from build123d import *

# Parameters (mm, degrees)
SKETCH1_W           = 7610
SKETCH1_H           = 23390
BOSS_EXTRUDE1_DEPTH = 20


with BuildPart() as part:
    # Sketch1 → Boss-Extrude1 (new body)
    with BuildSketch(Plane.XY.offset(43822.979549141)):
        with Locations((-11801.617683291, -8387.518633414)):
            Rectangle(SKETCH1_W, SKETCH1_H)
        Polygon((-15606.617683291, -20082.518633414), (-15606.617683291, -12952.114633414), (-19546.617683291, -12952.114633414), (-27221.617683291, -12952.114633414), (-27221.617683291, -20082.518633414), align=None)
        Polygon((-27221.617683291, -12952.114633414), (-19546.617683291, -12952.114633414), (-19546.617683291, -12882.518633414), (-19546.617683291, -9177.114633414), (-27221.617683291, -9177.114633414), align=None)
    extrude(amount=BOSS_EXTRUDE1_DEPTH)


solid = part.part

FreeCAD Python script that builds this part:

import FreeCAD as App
import Part
import Sketcher
from FreeCAD import Vector
Q = App.Units.Quantity


def add_polygon(sketch, points):
    """Adds a closed chain of lines whose ends are joined by coincident constraints."""
    first, n = sketch.GeometryCount, len(points)
    for a, b in zip(points, points[1:] + points[:1]):
        sketch.addGeometry(Part.LineSegment(App.Vector(*a, 0), App.Vector(*b, 0)), False)
    for i in range(n):
        sketch.addConstraint(Sketcher.Constraint("Coincident", first + i, 2, first + (i + 1) % n, 1))

doc = App.newDocument("Part")
body = doc.addObject("PartDesign::Body", "Body")

# Sketch on XY plane
sketch1 = doc.addObject("Sketcher::SketchObject", "Sketch")
body.addObject(sketch1)
sketch1.AttachmentSupport = (doc.XY_Plane, [""])
sketch1.MapMode = "FlatFace"
sketch1.AttachmentOffset = App.Placement(Vector(0, 0, 43822.979549), App.Rotation())
add_polygon(sketch1, [(-15607, 3307), (-15607, -12952), (-19547, -12952), (-19547, -9177), (-27222, -9177), (-27222, -20083), (-7997, -20083), (-7997, 3307)])  # lines 0-7
sketch1.addConstraint(Sketcher.Constraint("Vertical", 0))
sketch1.addConstraint(Sketcher.Constraint("Horizontal", 1))
sketch1.addConstraint(Sketcher.Constraint("Vertical", 2))
sketch1.addConstraint(Sketcher.Constraint("Horizontal", 3))
sketch1.addConstraint(Sketcher.Constraint("Vertical", 4))
sketch1.addConstraint(Sketcher.Constraint("Horizontal", 5))
sketch1.addConstraint(Sketcher.Constraint("Vertical", 6))
sketch1.addConstraint(Sketcher.Constraint("Horizontal", 7))
sketch1.addConstraint(Sketcher.Constraint("DistanceX", 1, 2, 1, 1, Q("3940 mm")))
sketch1.addConstraint(Sketcher.Constraint("DistanceX", 3, 2, 3, 1, Q("7675 mm")))
sketch1.addConstraint(Sketcher.Constraint("DistanceX", 5, 1, 5, 2, Q("19225 mm")))
sketch1.addConstraint(Sketcher.Constraint("DistanceY", 2, 1, 2, 2, Q("3775 mm")))
sketch1.addConstraint(Sketcher.Constraint("DistanceY", 6, 1, 6, 2, Q("23390 mm")))
sketch1.addConstraint(Sketcher.Constraint("DistanceY", 0, 2, 0, 1, Q("16259.596 mm")))
sketch1.addConstraint(Sketcher.Constraint("DistanceX", 0, 2, -1, 1, Q("15606.617683 mm")))
sketch1.addConstraint(Sketcher.Constraint("DistanceY", 0, 2, -1, 1, Q("12952.114633 mm")))
pad1 = doc.addObject("PartDesign::Pad", "Pad")
body.addObject(pad1)
pad1.Profile = sketch1
pad1.Length = 20

doc.recompute()
